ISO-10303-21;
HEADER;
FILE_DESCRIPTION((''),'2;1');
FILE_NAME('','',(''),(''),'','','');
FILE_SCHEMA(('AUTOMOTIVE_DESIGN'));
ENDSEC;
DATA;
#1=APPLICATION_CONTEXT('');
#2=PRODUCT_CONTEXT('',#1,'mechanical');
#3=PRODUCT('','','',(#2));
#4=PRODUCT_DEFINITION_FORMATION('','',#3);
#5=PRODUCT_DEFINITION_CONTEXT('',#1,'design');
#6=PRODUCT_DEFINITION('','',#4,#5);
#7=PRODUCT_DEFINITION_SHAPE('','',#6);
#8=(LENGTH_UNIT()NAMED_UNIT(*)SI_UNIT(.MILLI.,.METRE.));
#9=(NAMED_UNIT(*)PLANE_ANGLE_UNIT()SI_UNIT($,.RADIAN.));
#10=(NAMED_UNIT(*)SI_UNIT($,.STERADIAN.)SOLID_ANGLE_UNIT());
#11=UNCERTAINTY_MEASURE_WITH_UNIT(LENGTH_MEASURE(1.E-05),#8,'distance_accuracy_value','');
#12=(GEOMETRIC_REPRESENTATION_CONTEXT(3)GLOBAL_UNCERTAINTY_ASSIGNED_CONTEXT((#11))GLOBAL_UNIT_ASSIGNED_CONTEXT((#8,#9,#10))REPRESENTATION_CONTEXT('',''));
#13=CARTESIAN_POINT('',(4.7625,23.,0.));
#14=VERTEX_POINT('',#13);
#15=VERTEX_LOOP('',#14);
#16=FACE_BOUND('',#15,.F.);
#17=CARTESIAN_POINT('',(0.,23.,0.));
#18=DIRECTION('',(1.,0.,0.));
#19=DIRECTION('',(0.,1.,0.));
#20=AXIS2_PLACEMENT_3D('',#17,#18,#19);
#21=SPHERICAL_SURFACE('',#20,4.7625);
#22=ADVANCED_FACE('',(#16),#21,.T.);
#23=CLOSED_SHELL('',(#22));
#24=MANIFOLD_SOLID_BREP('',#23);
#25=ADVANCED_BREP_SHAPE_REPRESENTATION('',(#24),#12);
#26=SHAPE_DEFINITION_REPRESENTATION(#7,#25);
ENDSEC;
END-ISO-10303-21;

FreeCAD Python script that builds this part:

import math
import FreeCAD as App
import Part
import Sketcher
from FreeCAD import Vector
Q = App.Units.Quantity

doc = App.newDocument("Part")
body = doc.addObject("PartDesign::Body", "Body")

# Sketch on XY plane
sketch1 = body.newObject("Sketcher::SketchObject", "Sketch")
sketch1.AttachmentSupport = (doc.getObject("XY_Plane"), [""])
sketch1.MapMode = "FlatFace"
sketch1.addGeometry(Part.ArcOfCircle(Part.Circle(Vector(0, 23, 0), Vector(0, 0, 1), 4.8), math.radians(0), math.radians(180)), False)
sketch1.addGeometry(Part.LineSegment(Vector(-4.8, 23, 0), Vector(4.8, 23, 0)), False)
sketch1.addGeometry(Part.LineSegment(Vector(4.8, 23, 0), Vector(-4.8, 23, 0)), True)  # axis
sketch1.addConstraint(Sketcher.Constraint("Coincident", 0, 1, 1, 2))
sketch1.addConstraint(Sketcher.Constraint("Coincident", 1, 1, 0, 2))
sketch1.addConstraint(Sketcher.Constraint("Horizontal", 1))
sketch1.addConstraint(Sketcher.Constraint("Horizontal", 2))
sketch1.addConstraint(Sketcher.Constraint("Coincident", 2, 1, 0, 1))
sketch1.addConstraint(Sketcher.Constraint("PointOnObject", 0, 3, -2))
sketch1.addConstraint(Sketcher.Constraint("Equal", 1, 2))
sketch1.addConstraint(Sketcher.Constraint("Radius", 0, Q("0.1875 in")))
sketch1.addConstraint(Sketcher.Constraint("DistanceY", -1, 1, 0, 3, Q("0.9055 in")))
sketch1.addConstraint(Sketcher.Constraint("DistanceY", -1, 1, 0, 1, Q("0.9055 in")))
revolution = body.newObject("PartDesign::Revolution", "Revolution")
revolution.Profile = sketch1
revolution.ReferenceAxis = (sketch1, ["Axis0"])
revolution.Angle = 360

doc.recompute()
